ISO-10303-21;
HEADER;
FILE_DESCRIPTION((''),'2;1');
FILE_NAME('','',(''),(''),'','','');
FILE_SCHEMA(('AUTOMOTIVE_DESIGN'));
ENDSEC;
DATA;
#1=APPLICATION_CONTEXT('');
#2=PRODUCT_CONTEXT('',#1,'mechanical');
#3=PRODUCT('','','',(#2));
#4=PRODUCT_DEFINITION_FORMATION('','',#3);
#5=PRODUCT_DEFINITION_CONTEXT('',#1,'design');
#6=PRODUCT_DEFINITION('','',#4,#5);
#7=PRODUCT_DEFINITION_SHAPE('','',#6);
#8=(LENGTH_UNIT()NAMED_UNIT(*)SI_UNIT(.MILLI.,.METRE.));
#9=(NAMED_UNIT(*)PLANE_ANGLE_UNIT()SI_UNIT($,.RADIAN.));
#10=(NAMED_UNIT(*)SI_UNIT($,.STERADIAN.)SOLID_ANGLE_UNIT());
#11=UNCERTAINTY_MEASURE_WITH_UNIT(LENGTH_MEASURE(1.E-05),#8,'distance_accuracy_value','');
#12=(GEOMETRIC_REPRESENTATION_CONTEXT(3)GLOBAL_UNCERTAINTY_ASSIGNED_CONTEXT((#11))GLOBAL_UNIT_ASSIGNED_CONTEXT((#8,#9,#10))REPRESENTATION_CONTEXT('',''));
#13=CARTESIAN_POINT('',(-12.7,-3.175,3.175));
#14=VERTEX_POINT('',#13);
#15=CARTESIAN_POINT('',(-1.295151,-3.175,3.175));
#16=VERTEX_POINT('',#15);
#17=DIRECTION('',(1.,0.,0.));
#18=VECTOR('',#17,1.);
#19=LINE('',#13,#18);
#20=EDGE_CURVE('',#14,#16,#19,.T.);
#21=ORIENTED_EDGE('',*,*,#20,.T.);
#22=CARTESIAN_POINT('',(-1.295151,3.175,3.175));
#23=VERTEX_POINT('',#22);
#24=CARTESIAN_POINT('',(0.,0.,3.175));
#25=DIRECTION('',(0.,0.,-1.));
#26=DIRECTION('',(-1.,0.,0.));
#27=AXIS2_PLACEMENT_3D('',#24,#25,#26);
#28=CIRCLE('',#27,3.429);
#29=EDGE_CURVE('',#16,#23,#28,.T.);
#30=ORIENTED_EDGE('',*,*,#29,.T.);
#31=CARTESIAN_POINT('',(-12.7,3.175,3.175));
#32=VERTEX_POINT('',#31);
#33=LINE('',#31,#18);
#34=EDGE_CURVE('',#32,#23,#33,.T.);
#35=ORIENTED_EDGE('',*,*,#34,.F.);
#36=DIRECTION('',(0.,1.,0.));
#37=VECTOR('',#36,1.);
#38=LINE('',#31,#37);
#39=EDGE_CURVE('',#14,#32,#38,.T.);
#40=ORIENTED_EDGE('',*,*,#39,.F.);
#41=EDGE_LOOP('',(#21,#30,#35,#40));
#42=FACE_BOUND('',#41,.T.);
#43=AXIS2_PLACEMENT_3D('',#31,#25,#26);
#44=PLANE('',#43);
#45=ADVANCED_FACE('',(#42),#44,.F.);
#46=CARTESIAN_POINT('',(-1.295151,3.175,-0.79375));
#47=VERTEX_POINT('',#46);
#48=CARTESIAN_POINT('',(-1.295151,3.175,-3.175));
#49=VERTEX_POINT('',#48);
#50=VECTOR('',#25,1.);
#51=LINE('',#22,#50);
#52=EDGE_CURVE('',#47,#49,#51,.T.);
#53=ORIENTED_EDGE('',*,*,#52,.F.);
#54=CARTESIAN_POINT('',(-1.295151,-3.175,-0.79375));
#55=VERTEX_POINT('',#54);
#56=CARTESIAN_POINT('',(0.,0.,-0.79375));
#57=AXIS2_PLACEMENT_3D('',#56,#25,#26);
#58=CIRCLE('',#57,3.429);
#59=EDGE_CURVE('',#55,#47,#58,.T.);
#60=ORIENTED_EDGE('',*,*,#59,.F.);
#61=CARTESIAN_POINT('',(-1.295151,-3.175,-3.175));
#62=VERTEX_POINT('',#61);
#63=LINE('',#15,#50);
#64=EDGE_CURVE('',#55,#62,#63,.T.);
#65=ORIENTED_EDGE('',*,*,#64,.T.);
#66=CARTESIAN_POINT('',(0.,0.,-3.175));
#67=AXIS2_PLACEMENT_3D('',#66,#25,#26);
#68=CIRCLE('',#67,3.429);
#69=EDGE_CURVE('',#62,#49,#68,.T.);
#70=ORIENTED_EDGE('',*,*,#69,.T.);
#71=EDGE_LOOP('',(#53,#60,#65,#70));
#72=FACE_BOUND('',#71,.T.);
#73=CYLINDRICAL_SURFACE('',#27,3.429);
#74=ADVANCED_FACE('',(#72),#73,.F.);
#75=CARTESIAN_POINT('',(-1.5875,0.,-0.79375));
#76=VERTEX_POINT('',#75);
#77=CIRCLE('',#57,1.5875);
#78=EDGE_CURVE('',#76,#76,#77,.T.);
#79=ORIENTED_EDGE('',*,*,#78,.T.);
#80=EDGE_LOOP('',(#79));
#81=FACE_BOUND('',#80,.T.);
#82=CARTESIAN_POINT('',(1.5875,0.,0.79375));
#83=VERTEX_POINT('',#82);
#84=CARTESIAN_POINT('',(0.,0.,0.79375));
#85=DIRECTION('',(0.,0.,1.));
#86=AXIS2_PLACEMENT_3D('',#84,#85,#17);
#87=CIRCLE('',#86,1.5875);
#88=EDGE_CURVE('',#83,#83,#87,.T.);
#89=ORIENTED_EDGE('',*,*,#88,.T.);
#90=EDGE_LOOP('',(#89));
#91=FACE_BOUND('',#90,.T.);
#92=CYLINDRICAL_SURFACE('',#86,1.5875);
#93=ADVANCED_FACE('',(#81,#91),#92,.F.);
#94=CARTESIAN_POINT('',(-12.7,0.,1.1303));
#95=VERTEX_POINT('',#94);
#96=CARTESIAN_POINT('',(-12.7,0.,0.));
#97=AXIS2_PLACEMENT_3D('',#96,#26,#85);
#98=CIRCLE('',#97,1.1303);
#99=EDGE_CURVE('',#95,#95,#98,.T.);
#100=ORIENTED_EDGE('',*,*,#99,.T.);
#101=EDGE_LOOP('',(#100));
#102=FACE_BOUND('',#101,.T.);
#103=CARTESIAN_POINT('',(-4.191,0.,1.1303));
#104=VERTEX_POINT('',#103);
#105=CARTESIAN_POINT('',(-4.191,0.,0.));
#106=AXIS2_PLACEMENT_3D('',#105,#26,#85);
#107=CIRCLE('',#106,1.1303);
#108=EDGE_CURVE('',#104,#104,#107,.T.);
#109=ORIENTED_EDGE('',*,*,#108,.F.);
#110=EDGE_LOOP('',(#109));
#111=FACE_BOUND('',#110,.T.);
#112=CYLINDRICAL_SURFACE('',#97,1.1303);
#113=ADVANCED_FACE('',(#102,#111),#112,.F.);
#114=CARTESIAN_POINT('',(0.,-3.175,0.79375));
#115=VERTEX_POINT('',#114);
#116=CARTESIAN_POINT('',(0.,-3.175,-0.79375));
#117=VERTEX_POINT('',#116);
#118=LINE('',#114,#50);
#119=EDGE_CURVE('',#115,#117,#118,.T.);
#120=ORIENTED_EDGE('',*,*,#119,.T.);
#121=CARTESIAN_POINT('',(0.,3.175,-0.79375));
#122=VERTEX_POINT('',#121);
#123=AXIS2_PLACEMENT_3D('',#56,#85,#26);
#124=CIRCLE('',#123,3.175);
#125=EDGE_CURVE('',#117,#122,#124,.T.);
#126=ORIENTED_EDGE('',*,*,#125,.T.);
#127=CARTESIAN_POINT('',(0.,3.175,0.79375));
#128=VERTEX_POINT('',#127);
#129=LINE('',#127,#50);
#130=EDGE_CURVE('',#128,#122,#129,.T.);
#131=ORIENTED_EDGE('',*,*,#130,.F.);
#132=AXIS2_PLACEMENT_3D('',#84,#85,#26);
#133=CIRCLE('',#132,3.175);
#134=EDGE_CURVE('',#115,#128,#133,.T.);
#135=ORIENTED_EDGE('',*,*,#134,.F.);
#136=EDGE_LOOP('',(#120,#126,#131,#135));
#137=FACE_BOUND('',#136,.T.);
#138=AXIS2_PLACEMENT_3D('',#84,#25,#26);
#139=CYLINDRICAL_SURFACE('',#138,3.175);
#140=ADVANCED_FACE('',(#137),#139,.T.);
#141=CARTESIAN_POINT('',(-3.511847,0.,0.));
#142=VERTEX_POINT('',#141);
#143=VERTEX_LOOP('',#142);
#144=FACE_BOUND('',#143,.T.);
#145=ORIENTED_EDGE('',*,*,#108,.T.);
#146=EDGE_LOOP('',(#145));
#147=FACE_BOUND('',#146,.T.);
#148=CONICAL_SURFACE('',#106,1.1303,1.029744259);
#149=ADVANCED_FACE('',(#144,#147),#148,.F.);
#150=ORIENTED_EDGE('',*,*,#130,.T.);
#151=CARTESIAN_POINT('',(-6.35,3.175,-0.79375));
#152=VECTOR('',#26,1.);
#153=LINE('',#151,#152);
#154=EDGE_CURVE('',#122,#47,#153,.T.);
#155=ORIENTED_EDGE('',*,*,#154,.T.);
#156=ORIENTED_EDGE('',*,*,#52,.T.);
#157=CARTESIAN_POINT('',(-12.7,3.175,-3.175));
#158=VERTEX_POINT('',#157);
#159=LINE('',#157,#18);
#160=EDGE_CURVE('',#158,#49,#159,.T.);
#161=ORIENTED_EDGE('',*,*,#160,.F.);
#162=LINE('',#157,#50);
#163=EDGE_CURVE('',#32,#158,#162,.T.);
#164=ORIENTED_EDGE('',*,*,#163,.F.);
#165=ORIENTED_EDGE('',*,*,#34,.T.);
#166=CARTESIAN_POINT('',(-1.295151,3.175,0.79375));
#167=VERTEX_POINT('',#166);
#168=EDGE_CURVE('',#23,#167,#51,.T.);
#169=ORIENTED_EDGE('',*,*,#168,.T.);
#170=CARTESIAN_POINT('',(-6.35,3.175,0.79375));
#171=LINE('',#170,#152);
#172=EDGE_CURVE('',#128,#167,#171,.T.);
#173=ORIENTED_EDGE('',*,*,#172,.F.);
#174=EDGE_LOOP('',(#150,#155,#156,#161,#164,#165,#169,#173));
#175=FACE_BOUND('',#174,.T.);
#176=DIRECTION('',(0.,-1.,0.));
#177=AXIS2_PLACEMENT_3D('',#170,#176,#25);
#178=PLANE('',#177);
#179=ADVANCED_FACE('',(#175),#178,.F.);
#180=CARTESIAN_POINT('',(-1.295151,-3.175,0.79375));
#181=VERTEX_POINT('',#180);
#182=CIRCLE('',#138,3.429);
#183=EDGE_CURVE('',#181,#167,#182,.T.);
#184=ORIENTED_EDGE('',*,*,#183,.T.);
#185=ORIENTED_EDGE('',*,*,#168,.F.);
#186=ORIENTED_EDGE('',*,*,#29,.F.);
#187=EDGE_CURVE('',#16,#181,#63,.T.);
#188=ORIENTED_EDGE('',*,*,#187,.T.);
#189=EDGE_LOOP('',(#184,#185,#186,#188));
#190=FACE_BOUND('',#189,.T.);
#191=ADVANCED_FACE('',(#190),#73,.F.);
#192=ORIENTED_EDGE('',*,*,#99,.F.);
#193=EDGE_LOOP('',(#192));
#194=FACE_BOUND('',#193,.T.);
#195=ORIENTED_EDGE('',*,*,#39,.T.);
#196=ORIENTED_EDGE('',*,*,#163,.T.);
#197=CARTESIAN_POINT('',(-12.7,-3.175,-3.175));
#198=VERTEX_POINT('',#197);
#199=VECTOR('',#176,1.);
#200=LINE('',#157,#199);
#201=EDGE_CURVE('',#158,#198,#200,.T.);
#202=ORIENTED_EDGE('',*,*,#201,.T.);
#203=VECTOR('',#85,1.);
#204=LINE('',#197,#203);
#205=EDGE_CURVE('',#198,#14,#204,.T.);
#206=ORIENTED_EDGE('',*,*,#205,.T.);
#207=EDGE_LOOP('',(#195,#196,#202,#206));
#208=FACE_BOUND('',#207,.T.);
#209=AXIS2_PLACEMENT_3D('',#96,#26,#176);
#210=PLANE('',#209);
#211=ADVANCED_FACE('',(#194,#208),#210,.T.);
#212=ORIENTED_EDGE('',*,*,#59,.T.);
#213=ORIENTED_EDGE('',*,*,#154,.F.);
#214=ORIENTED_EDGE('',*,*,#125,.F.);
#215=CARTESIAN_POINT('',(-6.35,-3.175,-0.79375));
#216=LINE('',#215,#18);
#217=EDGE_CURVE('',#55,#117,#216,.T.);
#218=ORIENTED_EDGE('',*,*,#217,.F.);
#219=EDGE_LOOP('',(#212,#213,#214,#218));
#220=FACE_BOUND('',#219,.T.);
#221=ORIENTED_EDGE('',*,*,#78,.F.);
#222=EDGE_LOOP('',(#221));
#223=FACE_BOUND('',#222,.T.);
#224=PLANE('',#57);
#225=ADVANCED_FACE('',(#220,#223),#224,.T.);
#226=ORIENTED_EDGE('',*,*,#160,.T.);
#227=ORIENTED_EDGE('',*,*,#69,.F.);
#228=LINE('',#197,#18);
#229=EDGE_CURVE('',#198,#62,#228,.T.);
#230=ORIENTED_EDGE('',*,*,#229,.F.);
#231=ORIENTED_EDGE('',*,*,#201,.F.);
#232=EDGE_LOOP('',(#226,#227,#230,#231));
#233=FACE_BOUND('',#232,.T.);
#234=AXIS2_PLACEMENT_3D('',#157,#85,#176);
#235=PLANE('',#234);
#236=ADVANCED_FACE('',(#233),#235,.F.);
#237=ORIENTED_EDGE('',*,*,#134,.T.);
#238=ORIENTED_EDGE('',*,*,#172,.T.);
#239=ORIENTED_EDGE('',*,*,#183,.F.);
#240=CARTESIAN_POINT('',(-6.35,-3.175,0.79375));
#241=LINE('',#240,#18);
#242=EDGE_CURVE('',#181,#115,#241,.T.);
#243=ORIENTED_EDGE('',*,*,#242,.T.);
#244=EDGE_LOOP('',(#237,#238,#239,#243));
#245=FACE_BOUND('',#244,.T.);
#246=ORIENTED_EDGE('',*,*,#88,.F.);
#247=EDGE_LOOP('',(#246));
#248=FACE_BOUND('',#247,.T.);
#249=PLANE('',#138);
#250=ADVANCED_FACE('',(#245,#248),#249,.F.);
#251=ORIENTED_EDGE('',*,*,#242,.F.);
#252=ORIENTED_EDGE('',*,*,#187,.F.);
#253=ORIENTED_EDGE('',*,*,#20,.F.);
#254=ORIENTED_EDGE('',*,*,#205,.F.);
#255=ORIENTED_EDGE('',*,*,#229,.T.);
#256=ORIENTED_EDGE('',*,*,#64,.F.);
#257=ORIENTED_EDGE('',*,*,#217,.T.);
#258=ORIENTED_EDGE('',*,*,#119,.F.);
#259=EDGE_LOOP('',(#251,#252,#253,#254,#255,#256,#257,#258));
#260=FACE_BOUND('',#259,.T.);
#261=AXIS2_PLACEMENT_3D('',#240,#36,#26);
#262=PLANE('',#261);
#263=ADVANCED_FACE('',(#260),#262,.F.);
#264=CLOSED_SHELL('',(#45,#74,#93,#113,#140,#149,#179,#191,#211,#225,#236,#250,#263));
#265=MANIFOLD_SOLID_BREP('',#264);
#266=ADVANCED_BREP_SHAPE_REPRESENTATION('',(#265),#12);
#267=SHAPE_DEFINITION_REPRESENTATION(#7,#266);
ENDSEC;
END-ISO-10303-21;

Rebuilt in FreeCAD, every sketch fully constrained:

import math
import FreeCAD as App
import Part
import Sketcher

V = App.Vector
Q = App.Units.Quantity


def add_polygon(sketch, points):
    """Adds a closed chain of lines whose ends are joined by coincident constraints."""
    first, n = sketch.GeometryCount, len(points)
    for a, b in zip(points, points[1:] + points[:1]):
        sketch.addGeometry(Part.LineSegment(App.Vector(*a, 0), App.Vector(*b, 0)), False)
    for i in range(n):
        sketch.addConstraint(Sketcher.Constraint("Coincident", first + i, 2, first + (i + 1) % n, 1))

doc = App.newDocument("Part")
body = doc.addObject("PartDesign::Body", "Body")

sketch1 = body.newObject("Sketcher::SketchObject", "Sketch")
sketch1.AttachmentSupport = (doc.getObject("XY_Plane"), [""])
sketch1.MapMode = "FlatFace"
sketch1.addGeometry(Part.LineSegment(V(0, 3.2, 0), V(-6.3, 3.2, 0)), False)
sketch1.addGeometry(Part.LineSegment(V(-6.3, 3.2, 0), V(-6.3, -3.2, 0)), False)
sketch1.addGeometry(Part.LineSegment(V(-6.3, -3.2, 0), V(0, -3.2, 0)), False)
sketch1.addGeometry(Part.ArcOfCircle(Part.Circle(V(0, 0, 0), V(0, 0, 1), 3.2), math.radians(-90), math.radians(90)), False)
sketch1.addConstraint(Sketcher.Constraint("Coincident", 0, 2, 1, 1))
sketch1.addConstraint(Sketcher.Constraint("Coincident", 1, 2, 2, 1))
sketch1.addConstraint(Sketcher.Constraint("Tangent", 2, 2, 3, 1))
sketch1.addConstraint(Sketcher.Constraint("Tangent", 3, 2, 0, 1))
sketch1.addConstraint(Sketcher.Constraint("Horizontal", 0))
sketch1.addConstraint(Sketcher.Constraint("Vertical", 1))
sketch1.addConstraint(Sketcher.Constraint("Horizontal", 2))
sketch1.addConstraint(Sketcher.Constraint("Coincident", 3, 3, -1, 1))
sketch1.addConstraint(Sketcher.Constraint("Equal", 2, 1))
sketch1.addConstraint(Sketcher.Constraint("Radius", 3, Q("0.125 in")))
pad1 = body.newObject("PartDesign::Pad", "Pad")
pad1.Profile = sketch1
pad1.Length = Q("0.0625 in")
pad1.Midplane = True

sketch2 = body.newObject("Sketcher::SketchObject", "Sketch001")
sketch2.AttachmentSupport = (doc.getObject("YZ_Plane"), [""])
sketch2.MapMode = "FlatFace"
sketch2.AttachmentOffset = App.Placement(V(0, 0, -0.25 * 25.4), App.Rotation())
add_polygon(sketch2, [(3, -3), (-3, -3), (-3, 3), (3, 3)])
sketch2.addConstraint(Sketcher.Constraint("Horizontal", 0))
sketch2.addConstraint(Sketcher.Constraint("Vertical", 1))
sketch2.addConstraint(Sketcher.Constraint("Horizontal", 2))
sketch2.addConstraint(Sketcher.Constraint("Vertical", 3))
sketch2.addConstraint(Sketcher.Constraint("Symmetric", 0, 2, 2, 2, -1, 1))
sketch2.addConstraint(Sketcher.Constraint("Equal", 2, 1))
sketch2.addConstraint(Sketcher.Constraint("DistanceX", 0, 2, 0, 1, Q("0.25 in")))
pad2 = body.newObject("PartDesign::Pad", "Pad001")
pad2.Profile = sketch2
pad2.Length = Q("0.25 in")
pad2.Reversed = True

sketch3 = body.newObject("Sketcher::SketchObject", "Sketch002")
sketch3.AttachmentSupport = (doc.getObject("XY_Plane"), [""])
sketch3.MapMode = "FlatFace"
sketch3.addGeometry(Part.LineSegment(V(-1.3, 3.2, 0), V(-6.3, 3.2, 0)), False)
sketch3.addGeometry(Part.LineSegment(V(-6.3, 3.2, 0), V(-6.3, -3.2, 0)), False)
sketch3.addGeometry(Part.LineSegment(V(-6.3, -3.2, 0), V(-1.3, -3.2, 0)), False)
sketch3.addGeometry(Part.ArcOfCircle(Part.Circle(V(0, 0, 0), V(0, 0, 1), 3.4), math.radians(112), math.radians(248)), False)
sketch3.addConstraint(Sketcher.Constraint("Coincident", 0, 2, 1, 1))
sketch3.addConstraint(Sketcher.Constraint("Coincident", 1, 2, 2, 1))
sketch3.addConstraint(Sketcher.Constraint("Coincident", 2, 2, 3, 2))
sketch3.addConstraint(Sketcher.Constraint("Coincident", 3, 1, 0, 1))
sketch3.addConstraint(Sketcher.Constraint("Horizontal", 0))
sketch3.addConstraint(Sketcher.Constraint("Vertical", 1))
sketch3.addConstraint(Sketcher.Constraint("Horizontal", 2))
sketch3.addConstraint(Sketcher.Constraint("Coincident", 3, 3, -1, 1))
sketch3.addConstraint(Sketcher.Constraint("Vertical", 2, 2, 3, 1))
sketch3.addConstraint(Sketcher.Constraint("Radius", 3, Q("0.135 in")))
sketch3.addConstraint(Sketcher.Constraint("DistanceY", 1, 2, 1, 1, Q("0.25 in")))
sketch3.addConstraint(Sketcher.Constraint("DistanceX", 0, 2, -1, 1, Q("0.25 in")))
pad3 = body.newObject("PartDesign::Pad", "Pad002")
pad3.Profile = sketch3
pad3.Length = Q("0.25 in")
pad3.Midplane = True

sketch4 = body.newObject("Sketcher::SketchObject", "Sketch003")
sketch4.AttachmentSupport = (doc.getObject("YZ_Plane"), [""])
sketch4.MapMode = "FlatFace"
sketch4.AttachmentOffset = App.Placement(V(0, 0, -0.5 * 25.4), App.Rotation())
sketch4.addGeometry(Part.Circle(V(0, 0, 0), V(0, 0, 1), 1.1), False)
sketch4.addConstraint(Sketcher.Constraint("Coincident", 0, 3, -1, 1))
sketch4.addConstraint(Sketcher.Constraint("Diameter", 0, Q("0.089 in")))
doc.recompute()
hole = body.newObject("PartDesign::Hole", "Hole")
hole.Profile = sketch4
hole.ThreadType = "None"
hole.Diameter = Q("0.089 in")
hole.DepthType = "Dimension"
hole.Depth = Q("0.335 in")
hole.DrillPoint = "Angled"
hole.DrillPointAngle = 118
hole.Reversed = True

sketch5 = body.newObject("Sketcher::SketchObject", "Sketch004")
sketch5.AttachmentSupport = (doc.getObject("XY_Plane"), [""])
sketch5.MapMode = "FlatFace"
sketch5.AttachmentOffset = App.Placement(V(0, 0, 0.03125 * 25.4), App.Rotation())
sketch5.addGeometry(Part.Circle(V(0, 0, 0), V(0, 0, 1), 1.6), False)
sketch5.addConstraint(Sketcher.Constraint("Coincident", 0, 3, -1, 1))
sketch5.addConstraint(Sketcher.Constraint("Diameter", 0, Q("0.125 in")))
doc.recompute()
hole2 = body.newObject("PartDesign::Hole", "Hole001")
hole2.Profile = sketch5
hole2.ThreadType = "None"
hole2.Diameter = Q("0.125 in")
hole2.DepthType = "Dimension"
hole2.Depth = Q("0.0625 in")
hole2.DrillPoint = "Flat"

doc.recompute()
